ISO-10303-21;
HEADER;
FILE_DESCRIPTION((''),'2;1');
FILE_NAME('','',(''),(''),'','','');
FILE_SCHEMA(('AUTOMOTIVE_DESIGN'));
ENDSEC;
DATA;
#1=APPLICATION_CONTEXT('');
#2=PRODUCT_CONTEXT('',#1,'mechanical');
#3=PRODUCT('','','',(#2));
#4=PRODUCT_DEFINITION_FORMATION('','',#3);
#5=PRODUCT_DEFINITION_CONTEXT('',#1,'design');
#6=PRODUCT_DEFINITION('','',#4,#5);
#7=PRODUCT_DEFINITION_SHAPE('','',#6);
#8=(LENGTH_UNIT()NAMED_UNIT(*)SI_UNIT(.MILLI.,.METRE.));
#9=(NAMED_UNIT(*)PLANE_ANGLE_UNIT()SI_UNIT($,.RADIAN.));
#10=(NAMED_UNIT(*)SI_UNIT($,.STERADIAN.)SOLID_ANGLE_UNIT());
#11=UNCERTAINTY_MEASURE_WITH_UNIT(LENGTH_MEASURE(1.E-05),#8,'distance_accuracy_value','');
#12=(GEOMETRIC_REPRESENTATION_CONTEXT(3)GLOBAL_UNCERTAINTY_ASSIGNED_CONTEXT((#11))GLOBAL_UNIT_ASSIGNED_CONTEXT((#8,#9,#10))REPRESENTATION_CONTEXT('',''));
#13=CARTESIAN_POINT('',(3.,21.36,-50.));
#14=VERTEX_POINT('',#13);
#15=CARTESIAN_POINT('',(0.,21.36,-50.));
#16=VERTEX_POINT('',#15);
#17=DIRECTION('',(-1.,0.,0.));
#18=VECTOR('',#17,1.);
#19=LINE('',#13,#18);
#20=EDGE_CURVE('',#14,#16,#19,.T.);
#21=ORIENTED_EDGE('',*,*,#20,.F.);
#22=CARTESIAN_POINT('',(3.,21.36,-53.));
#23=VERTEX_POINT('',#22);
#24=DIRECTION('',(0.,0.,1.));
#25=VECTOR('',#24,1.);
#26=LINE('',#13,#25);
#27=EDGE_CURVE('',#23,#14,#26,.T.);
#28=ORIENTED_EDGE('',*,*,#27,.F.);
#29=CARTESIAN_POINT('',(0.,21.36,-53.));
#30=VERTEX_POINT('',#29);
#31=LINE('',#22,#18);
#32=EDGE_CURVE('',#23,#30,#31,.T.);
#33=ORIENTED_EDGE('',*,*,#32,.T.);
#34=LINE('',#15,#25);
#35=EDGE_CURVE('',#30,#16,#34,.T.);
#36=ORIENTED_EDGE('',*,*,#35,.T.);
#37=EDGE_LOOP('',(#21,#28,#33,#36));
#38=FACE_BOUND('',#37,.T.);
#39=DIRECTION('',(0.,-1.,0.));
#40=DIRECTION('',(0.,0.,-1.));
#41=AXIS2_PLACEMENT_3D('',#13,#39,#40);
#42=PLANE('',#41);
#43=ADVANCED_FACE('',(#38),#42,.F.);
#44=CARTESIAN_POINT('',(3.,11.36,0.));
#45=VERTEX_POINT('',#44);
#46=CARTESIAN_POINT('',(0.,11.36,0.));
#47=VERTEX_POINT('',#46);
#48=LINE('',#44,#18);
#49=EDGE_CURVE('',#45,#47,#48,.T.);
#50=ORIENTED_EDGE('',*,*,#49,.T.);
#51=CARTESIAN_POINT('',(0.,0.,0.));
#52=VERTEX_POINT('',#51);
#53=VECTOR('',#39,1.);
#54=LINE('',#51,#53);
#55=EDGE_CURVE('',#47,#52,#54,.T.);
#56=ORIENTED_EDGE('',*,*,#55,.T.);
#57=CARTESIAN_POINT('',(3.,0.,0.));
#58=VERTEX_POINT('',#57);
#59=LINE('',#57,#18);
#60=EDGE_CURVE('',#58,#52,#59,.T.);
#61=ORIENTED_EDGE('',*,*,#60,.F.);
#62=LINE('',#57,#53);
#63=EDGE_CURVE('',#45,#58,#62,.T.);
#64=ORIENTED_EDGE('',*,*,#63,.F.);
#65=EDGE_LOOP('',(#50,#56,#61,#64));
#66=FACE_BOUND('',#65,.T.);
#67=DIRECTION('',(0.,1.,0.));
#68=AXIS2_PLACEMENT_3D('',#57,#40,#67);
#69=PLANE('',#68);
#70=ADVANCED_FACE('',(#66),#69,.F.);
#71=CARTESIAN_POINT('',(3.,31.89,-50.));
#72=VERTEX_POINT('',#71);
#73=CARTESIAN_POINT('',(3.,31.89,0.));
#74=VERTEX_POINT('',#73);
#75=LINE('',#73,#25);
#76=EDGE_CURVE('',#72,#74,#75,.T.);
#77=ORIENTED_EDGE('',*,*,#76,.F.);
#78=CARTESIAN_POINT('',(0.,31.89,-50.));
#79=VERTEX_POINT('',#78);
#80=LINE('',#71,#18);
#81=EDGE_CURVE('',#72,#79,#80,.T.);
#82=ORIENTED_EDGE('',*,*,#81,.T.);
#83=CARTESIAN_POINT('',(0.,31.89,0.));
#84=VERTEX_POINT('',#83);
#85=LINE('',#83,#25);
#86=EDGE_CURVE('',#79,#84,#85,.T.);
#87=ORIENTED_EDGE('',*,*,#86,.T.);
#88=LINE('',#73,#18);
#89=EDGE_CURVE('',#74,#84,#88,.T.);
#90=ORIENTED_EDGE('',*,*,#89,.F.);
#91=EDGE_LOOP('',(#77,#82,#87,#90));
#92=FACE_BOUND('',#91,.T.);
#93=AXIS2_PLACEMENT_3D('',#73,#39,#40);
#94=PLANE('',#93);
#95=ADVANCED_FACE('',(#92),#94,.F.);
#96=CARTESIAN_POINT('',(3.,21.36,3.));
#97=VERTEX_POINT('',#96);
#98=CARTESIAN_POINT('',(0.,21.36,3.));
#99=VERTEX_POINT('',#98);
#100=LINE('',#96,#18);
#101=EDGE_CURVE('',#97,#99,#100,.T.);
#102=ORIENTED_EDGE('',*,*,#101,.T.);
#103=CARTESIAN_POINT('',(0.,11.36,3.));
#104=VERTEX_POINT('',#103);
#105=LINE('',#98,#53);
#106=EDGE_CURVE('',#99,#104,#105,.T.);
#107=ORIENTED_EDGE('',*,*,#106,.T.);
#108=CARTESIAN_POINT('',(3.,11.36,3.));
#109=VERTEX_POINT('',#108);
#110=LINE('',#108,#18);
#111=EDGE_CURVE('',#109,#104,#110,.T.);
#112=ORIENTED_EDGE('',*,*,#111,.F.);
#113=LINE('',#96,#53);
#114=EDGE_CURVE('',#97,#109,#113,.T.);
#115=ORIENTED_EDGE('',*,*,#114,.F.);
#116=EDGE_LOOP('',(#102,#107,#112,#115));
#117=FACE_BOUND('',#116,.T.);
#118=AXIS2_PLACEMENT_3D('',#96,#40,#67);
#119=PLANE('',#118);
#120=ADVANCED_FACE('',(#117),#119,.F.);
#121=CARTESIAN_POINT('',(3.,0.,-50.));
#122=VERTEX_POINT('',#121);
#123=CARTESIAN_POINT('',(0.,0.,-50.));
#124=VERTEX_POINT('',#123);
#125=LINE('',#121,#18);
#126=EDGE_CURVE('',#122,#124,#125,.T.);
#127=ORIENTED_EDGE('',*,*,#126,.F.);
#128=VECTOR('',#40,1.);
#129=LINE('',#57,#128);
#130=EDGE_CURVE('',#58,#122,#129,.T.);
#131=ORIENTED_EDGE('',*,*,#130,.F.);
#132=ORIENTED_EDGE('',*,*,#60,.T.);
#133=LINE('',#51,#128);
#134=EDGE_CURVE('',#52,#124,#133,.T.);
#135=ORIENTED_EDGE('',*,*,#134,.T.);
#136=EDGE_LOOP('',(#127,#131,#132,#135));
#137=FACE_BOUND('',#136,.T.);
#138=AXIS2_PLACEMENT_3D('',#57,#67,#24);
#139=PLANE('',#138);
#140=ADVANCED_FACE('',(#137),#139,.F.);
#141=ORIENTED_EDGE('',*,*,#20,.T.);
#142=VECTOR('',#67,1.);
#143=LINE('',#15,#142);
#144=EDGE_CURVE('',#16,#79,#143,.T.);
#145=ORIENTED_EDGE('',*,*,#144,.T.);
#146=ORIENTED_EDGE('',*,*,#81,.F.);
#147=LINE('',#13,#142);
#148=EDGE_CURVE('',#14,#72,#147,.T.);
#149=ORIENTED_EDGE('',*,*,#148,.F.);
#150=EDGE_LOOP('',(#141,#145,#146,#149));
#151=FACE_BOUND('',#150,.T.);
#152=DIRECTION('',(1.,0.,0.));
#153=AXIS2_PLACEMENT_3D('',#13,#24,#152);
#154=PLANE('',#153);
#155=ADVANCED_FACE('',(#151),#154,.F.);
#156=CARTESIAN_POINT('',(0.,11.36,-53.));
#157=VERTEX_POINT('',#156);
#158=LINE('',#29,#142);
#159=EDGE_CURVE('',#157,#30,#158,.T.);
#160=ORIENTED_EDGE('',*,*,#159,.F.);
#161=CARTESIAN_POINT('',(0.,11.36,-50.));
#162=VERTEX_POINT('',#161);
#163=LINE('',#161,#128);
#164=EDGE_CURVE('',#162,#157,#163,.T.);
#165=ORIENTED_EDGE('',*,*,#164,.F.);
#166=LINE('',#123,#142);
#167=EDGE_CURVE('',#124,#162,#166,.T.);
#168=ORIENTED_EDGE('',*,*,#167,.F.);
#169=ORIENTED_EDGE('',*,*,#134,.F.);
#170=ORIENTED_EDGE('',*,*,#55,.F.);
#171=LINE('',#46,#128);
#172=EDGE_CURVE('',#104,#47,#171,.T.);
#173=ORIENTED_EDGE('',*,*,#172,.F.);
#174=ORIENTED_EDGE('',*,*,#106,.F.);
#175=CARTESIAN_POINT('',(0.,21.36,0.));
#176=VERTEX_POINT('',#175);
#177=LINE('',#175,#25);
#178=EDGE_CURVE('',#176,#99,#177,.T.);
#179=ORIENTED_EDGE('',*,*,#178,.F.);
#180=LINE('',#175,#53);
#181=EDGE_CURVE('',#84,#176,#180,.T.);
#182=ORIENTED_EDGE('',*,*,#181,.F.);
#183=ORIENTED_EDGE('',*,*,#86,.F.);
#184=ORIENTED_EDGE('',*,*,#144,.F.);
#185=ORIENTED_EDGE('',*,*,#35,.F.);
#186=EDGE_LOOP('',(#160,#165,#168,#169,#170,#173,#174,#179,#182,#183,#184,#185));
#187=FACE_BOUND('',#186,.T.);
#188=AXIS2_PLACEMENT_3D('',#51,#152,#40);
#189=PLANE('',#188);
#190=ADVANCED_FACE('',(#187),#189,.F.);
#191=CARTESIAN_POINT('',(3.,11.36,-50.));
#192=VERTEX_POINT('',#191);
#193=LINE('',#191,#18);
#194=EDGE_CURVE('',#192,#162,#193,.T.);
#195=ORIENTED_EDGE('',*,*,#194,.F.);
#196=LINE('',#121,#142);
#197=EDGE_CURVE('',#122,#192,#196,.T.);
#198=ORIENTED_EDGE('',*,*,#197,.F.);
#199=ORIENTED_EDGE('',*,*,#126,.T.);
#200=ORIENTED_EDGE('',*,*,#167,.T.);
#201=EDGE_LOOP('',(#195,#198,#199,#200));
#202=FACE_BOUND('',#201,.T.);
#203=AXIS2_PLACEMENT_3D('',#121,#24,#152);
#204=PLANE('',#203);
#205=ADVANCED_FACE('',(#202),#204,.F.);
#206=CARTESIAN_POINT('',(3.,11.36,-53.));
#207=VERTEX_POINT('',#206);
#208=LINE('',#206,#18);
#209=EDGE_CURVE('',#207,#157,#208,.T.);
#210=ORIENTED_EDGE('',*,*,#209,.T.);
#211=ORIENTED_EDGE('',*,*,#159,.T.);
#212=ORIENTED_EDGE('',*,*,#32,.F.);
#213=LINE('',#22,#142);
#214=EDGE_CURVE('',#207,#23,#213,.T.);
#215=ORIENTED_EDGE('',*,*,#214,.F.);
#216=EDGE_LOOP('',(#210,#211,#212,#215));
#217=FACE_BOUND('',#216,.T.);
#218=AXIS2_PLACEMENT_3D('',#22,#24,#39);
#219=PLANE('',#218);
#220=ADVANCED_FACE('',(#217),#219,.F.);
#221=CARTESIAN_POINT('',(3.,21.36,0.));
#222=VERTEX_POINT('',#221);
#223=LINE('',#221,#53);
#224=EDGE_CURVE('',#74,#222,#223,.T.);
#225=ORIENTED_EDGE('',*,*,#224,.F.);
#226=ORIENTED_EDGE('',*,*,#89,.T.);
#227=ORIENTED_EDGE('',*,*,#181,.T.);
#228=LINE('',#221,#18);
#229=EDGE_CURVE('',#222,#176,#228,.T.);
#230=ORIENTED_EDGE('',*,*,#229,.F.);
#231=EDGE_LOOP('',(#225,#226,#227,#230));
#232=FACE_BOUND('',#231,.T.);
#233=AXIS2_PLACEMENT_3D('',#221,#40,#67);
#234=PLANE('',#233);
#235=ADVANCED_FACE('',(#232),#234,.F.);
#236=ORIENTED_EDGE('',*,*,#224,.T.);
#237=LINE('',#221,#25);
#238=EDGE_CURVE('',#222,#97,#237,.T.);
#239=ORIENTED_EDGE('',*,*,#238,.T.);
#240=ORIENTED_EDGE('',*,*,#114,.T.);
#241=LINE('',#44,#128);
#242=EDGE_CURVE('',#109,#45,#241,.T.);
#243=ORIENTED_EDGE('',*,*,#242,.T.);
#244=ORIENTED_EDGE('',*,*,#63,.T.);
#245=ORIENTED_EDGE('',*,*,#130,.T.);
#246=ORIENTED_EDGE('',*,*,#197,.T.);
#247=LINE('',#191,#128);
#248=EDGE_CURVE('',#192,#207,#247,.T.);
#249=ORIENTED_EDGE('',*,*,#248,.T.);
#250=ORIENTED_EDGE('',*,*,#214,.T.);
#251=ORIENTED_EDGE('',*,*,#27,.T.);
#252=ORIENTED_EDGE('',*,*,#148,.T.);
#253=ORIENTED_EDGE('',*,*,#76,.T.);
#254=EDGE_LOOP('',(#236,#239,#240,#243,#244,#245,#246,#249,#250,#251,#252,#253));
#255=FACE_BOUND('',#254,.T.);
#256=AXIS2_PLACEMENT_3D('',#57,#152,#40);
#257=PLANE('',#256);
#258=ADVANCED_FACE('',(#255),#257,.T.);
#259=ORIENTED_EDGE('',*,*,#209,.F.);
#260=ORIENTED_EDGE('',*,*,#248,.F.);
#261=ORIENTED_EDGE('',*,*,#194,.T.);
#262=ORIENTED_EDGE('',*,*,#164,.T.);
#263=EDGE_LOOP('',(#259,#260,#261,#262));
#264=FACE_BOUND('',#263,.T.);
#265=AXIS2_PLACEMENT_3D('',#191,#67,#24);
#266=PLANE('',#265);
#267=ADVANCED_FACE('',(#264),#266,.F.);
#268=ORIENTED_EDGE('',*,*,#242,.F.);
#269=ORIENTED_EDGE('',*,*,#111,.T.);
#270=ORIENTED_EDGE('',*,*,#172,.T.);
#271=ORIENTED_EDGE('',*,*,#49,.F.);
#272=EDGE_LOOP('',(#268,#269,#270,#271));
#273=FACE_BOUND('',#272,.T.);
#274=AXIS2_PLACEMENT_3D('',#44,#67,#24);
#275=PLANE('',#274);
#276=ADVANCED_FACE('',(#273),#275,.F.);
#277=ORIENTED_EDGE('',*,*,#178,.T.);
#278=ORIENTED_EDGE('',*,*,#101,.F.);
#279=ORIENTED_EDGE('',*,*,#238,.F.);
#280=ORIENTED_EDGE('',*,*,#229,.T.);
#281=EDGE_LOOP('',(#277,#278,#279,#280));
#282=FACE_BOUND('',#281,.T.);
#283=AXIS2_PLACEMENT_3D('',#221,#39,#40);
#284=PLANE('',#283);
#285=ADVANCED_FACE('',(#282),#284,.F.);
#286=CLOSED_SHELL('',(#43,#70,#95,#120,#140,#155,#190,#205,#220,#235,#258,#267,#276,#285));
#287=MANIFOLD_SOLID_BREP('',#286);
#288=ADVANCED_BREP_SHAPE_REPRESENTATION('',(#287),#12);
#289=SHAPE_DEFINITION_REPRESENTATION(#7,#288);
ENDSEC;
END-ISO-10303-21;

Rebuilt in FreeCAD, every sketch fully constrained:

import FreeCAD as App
import Part
import Sketcher

V = App.Vector
Q = App.Units.Quantity


def add_polygon(sketch, points):
    """Adds a closed chain of lines whose ends are joined by coincident constraints."""
    first, n = sketch.GeometryCount, len(points)
    for a, b in zip(points, points[1:] + points[:1]):
        sketch.addGeometry(Part.LineSegment(App.Vector(*a, 0), App.Vector(*b, 0)), False)
    for i in range(n):
        sketch.addConstraint(Sketcher.Constraint("Coincident", first + i, 2, first + (i + 1) % n, 1))

doc = App.newDocument("Part")
body = doc.addObject("PartDesign::Body", "Body")

# Sketch on YZ plane
sketch1 = body.newObject("Sketcher::SketchObject", "Sketch")
sketch1.AttachmentSupport = (doc.getObject("YZ_Plane"), [""])
sketch1.MapMode = "FlatFace"
add_polygon(sketch1, [(0, 0), (0, -50), (11.4, -50), (11.4, -53), (21.4, -53), (21.4, -50), (31.9, -50), (31.9, 0), (21.4, 0), (21.4, 3), (11.4, 3), (11.4, 0)])  # lines 0-11
sketch1.addConstraint([
    Sketcher.Constraint("Vertical", 0),
    Sketcher.Constraint("Horizontal", 1),
    Sketcher.Constraint("Vertical", 2),
    Sketcher.Constraint("Horizontal", 3),
    Sketcher.Constraint("Vertical", 4),
    Sketcher.Constraint("Horizontal", 5),
    Sketcher.Constraint("Vertical", 6),
    Sketcher.Constraint("Horizontal", 7),
    Sketcher.Constraint("Vertical", 8),
    Sketcher.Constraint("Horizontal", 9),
    Sketcher.Constraint("Vertical", 10),
    Sketcher.Constraint("Horizontal", 11),
    Sketcher.Constraint("Coincident", 11, 2, -1, 1),
    Sketcher.Constraint("PointOnObject", 6, 2, -1),
    Sketcher.Constraint("Horizontal", 1, 2, 4, 2),
    Sketcher.Constraint("Vertical", 4, 2, 7, 2),
    Sketcher.Constraint("Vertical", 2, 2, 9, 2),
    Sketcher.Constraint("Equal", 4, 8),
    Sketcher.Constraint("DistanceX", 3, 1, 3, 2, Q("10 mm")),
    Sketcher.Constraint("DistanceY", 0, 2, 0, 1, Q("50 mm")),
    Sketcher.Constraint("DistanceY", 2, 2, 2, 1, Q("3 mm")),
    Sketcher.Constraint("DistanceX", 1, 1, 1, 2, Q("11.36 mm")),
    Sketcher.Constraint("DistanceX", 5, 1, 5, 2, Q("10.53 mm")),
])
pad1 = body.newObject("PartDesign::Pad", "Pad")
pad1.Profile = sketch1
pad1.Length = 3

doc.recompute()
